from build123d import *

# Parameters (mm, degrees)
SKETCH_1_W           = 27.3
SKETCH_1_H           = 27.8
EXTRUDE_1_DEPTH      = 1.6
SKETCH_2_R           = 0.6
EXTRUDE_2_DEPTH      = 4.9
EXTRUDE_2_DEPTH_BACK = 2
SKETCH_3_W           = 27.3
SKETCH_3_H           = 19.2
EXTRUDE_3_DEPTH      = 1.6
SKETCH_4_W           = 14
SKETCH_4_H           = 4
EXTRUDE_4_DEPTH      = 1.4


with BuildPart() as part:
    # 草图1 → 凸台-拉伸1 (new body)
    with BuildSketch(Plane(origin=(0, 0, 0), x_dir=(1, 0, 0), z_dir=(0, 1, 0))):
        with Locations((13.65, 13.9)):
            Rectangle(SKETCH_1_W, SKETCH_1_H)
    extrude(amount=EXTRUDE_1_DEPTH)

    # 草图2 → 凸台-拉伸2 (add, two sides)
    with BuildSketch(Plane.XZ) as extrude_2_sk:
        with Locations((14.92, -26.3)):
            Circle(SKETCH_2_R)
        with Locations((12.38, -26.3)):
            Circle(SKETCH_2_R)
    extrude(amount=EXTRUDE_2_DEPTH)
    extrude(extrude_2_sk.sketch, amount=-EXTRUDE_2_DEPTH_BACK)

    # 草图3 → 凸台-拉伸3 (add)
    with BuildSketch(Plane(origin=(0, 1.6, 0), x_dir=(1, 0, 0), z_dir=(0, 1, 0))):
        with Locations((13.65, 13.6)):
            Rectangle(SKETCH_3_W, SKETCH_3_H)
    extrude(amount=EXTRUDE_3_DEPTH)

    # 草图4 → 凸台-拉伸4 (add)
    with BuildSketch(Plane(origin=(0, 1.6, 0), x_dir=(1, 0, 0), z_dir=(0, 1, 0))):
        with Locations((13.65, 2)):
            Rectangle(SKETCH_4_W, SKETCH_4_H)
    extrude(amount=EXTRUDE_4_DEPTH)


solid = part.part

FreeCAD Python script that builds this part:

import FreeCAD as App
import Part
import Sketcher

V = App.Vector

doc = App.newDocument("Part")
params = doc.addObject("Spreadsheet::Sheet", "Params")
for row, (alias, value) in enumerate([
    ("sketch1_width", "27.3 mm"),
    ("sketch1_height", "27.8 mm"),
    ("pad1_length", "1.6 mm"),
    ("sketch2_diameter", "1.2 mm"),
    ("pad2_length", "4.9 mm"),
    ("pad2_length2", "2 mm"),
    ("sketch3_width", "27.3 mm"),
    ("sketch3_height", "19.2 mm"),
    ("pad3_length", "1.6 mm"),
    ("sketch4_width", "14 mm"),
    ("sketch4_height", "4 mm"),
    ("pad4_length", "1.4 mm"),
], start=1):
    params.set(f"A{row}", alias)
    params.set(f"B{row}", "=" + value)
    params.setAlias(f"B{row}", alias)

body = doc.addObject("PartDesign::Body", "Body")

# Sketch on XZ plane
sketch1 = body.newObject("Sketcher::SketchObject", "Sketch")
sketch1.AttachmentSupport = (doc.getObject("XZ_Plane"), [""])
sketch1.MapMode = "FlatFace"
sketch1.addGeometry(Part.LineSegment(V(0, -28, 0), V(0, 0, 0)), False)
sketch1.addGeometry(Part.LineSegment(V(0, 0, 0), V(27, 0, 0)), False)
sketch1.addGeometry(Part.LineSegment(V(27, 0, 0), V(27, -28, 0)), False)
sketch1.addGeometry(Part.LineSegment(V(27, -28, 0), V(0, -28, 0)), False)
sketch1.addConstraint(Sketcher.Constraint("Coincident", 0, 2, 1, 1))
sketch1.addConstraint(Sketcher.Constraint("Coincident", 1, 2, 2, 1))
sketch1.addConstraint(Sketcher.Constraint("Coincident", 2, 2, 3, 1))
sketch1.addConstraint(Sketcher.Constraint("Coincident", 3, 2, 0, 1))
sketch1.addConstraint(Sketcher.Constraint("Vertical", 0))
sketch1.addConstraint(Sketcher.Constraint("Horizontal", 1))
sketch1.addConstraint(Sketcher.Constraint("Vertical", 2))
sketch1.addConstraint(Sketcher.Constraint("Horizontal", 3))
sketch1.addConstraint(Sketcher.Constraint("Coincident", 0, 2, -1, 1))
sketch1.addConstraint(Sketcher.Constraint("DistanceX", 1, 1, 1, 2, 27.3))
sketch1.addConstraint(Sketcher.Constraint("DistanceY", 0, 1, 0, 2, 27.8))
sketch1.setExpression("Constraints[9]", "Params.sketch1_width")
sketch1.setExpression("Constraints[10]", "Params.sketch1_height")
pad1 = body.newObject("PartDesign::Pad", "Pad")
pad1.Profile = sketch1
pad1.setExpression("Length", "Params.pad1_length")
pad1.Reversed = True

# Sketch on XZ plane
sketch2 = body.newObject("Sketcher::SketchObject", "Sketch001")
sketch2.AttachmentSupport = (doc.getObject("XZ_Plane"), [""])
sketch2.MapMode = "FlatFace"
sketch2.addGeometry(Part.Circle(V(14.9, -26.3, 0), V(0, 0, 1), 0.6), False)
sketch2.addGeometry(Part.Circle(V(12.4, -26.3, 0), V(0, 0, 1), 0.6), False)
sketch2.addConstraint(Sketcher.Constraint("Equal", 0, 1))
sketch2.addConstraint(Sketcher.Constraint("Horizontal", 0, 3, 1, 3))
sketch2.addConstraint(Sketcher.Constraint("Diameter", 0, 1.2))
sketch2.addConstraint(Sketcher.Constraint("DistanceY", 0, 3, -1, 1, 26.3))
sketch2.addConstraint(Sketcher.Constraint("DistanceX", -1, 1, 0, 3, 14.92))
sketch2.addConstraint(Sketcher.Constraint("DistanceX", -1, 1, 1, 3, 12.38))
sketch2.setExpression("Constraints[2]", "Params.sketch2_diameter")
pad2 = body.newObject("PartDesign::Pad", "Pad001")
pad2.Profile = sketch2
pad2.Type = "TwoLengths"
pad2.setExpression("Length", "Params.pad2_length")
pad2.setExpression("Length2", "Params.pad2_length2")

# Sketch on XZ plane
sketch3 = body.newObject("Sketcher::SketchObject", "Sketch002")
sketch3.AttachmentSupport = (doc.getObject("XZ_Plane"), [""])
sketch3.MapMode = "FlatFace"
sketch3.AttachmentOffset = App.Placement(V(0, 0, -1.6), App.Rotation())
sketch3.addGeometry(Part.LineSegment(V(0, -23, 0), V(0, -4, 0)), False)
sketch3.addGeometry(Part.LineSegment(V(0, -4, 0), V(27, -4, 0)), False)
sketch3.addGeometry(Part.LineSegment(V(27, -4, 0), V(27, -23, 0)), False)
sketch3.addGeometry(Part.LineSegment(V(27, -23, 0), V(0, -23, 0)), False)
sketch3.addConstraint(Sketcher.Constraint("Coincident", 0, 2, 1, 1))
sketch3.addConstraint(Sketcher.Constraint("Coincident", 1, 2, 2, 1))
sketch3.addConstraint(Sketcher.Constraint("Coincident", 2, 2, 3, 1))
sketch3.addConstraint(Sketcher.Constraint("Coincident", 3, 2, 0, 1))
sketch3.addConstraint(Sketcher.Constraint("Vertical", 0))
sketch3.addConstraint(Sketcher.Constraint("Horizontal", 1))
sketch3.addConstraint(Sketcher.Constraint("Vertical", 2))
sketch3.addConstraint(Sketcher.Constraint("Horizontal", 3))
sketch3.addConstraint(Sketcher.Constraint("PointOnObject", 0, 2, -2))
sketch3.addConstraint(Sketcher.Constraint("DistanceX", 1, 1, 1, 2, 27.3))
sketch3.addConstraint(Sketcher.Constraint("DistanceY", 0, 1, 0, 2, 19.2))
sketch3.addConstraint(Sketcher.Constraint("DistanceY", 0, 2, -1, 1, 4.0))
sketch3.setExpression("Constraints[9]", "Params.sketch3_width")
sketch3.setExpression("Constraints[10]", "Params.sketch3_height")
pad3 = body.newObject("PartDesign::Pad", "Pad002")
pad3.Profile = sketch3
pad3.setExpression("Length", "Params.pad3_length")
pad3.Reversed = True

# Sketch on XZ plane
sketch4 = body.newObject("Sketcher::SketchObject", "Sketch003")
sketch4.AttachmentSupport = (doc.getObject("XZ_Plane"), [""])
sketch4.MapMode = "FlatFace"
sketch4.AttachmentOffset = App.Placement(V(0, 0, -1.6), App.Rotation())
sketch4.addGeometry(Part.LineSegment(V(6.7, -4, 0), V(6.7, 0, 0)), False)
sketch4.addGeometry(Part.LineSegment(V(6.7, 0, 0), V(20.6, 0, 0)), False)
sketch4.addGeometry(Part.LineSegment(V(20.6, 0, 0), V(20.6, -4, 0)), False)
sketch4.addGeometry(Part.LineSegment(V(20.6, -4, 0), V(6.7, -4, 0)), False)
sketch4.addConstraint(Sketcher.Constraint("Coincident", 0, 2, 1, 1))
sketch4.addConstraint(Sketcher.Constraint("Coincident", 1, 2, 2, 1))
sketch4.addConstraint(Sketcher.Constraint("Coincident", 2, 2, 3, 1))
sketch4.addConstraint(Sketcher.Constraint("Coincident", 3, 2, 0, 1))
sketch4.addConstraint(Sketcher.Constraint("Vertical", 0))
sketch4.addConstraint(Sketcher.Constraint("Horizontal", 1))
sketch4.addConstraint(Sketcher.Constraint("Vertical", 2))
sketch4.addConstraint(Sketcher.Constraint("Horizontal", 3))
sketch4.addConstraint(Sketcher.Constraint("PointOnObject", 0, 2, -1))
sketch4.addConstraint(Sketcher.Constraint("DistanceX", 1, 1, 1, 2, 14.0))
sketch4.addConstraint(Sketcher.Constraint("DistanceY", 0, 1, 0, 2, 4.0))
sketch4.addConstraint(Sketcher.Constraint("DistanceX", -1, 1, 0, 2, 6.65))
sketch4.setExpression("Constraints[9]", "Params.sketch4_width")
sketch4.setExpression("Constraints[10]", "Params.sketch4_height")
pad4 = body.newObject("PartDesign::Pad", "Pad003")
pad4.Profile = sketch4
pad4.setExpression("Length", "Params.pad4_length")
pad4.Reversed = True

doc.recompute()
